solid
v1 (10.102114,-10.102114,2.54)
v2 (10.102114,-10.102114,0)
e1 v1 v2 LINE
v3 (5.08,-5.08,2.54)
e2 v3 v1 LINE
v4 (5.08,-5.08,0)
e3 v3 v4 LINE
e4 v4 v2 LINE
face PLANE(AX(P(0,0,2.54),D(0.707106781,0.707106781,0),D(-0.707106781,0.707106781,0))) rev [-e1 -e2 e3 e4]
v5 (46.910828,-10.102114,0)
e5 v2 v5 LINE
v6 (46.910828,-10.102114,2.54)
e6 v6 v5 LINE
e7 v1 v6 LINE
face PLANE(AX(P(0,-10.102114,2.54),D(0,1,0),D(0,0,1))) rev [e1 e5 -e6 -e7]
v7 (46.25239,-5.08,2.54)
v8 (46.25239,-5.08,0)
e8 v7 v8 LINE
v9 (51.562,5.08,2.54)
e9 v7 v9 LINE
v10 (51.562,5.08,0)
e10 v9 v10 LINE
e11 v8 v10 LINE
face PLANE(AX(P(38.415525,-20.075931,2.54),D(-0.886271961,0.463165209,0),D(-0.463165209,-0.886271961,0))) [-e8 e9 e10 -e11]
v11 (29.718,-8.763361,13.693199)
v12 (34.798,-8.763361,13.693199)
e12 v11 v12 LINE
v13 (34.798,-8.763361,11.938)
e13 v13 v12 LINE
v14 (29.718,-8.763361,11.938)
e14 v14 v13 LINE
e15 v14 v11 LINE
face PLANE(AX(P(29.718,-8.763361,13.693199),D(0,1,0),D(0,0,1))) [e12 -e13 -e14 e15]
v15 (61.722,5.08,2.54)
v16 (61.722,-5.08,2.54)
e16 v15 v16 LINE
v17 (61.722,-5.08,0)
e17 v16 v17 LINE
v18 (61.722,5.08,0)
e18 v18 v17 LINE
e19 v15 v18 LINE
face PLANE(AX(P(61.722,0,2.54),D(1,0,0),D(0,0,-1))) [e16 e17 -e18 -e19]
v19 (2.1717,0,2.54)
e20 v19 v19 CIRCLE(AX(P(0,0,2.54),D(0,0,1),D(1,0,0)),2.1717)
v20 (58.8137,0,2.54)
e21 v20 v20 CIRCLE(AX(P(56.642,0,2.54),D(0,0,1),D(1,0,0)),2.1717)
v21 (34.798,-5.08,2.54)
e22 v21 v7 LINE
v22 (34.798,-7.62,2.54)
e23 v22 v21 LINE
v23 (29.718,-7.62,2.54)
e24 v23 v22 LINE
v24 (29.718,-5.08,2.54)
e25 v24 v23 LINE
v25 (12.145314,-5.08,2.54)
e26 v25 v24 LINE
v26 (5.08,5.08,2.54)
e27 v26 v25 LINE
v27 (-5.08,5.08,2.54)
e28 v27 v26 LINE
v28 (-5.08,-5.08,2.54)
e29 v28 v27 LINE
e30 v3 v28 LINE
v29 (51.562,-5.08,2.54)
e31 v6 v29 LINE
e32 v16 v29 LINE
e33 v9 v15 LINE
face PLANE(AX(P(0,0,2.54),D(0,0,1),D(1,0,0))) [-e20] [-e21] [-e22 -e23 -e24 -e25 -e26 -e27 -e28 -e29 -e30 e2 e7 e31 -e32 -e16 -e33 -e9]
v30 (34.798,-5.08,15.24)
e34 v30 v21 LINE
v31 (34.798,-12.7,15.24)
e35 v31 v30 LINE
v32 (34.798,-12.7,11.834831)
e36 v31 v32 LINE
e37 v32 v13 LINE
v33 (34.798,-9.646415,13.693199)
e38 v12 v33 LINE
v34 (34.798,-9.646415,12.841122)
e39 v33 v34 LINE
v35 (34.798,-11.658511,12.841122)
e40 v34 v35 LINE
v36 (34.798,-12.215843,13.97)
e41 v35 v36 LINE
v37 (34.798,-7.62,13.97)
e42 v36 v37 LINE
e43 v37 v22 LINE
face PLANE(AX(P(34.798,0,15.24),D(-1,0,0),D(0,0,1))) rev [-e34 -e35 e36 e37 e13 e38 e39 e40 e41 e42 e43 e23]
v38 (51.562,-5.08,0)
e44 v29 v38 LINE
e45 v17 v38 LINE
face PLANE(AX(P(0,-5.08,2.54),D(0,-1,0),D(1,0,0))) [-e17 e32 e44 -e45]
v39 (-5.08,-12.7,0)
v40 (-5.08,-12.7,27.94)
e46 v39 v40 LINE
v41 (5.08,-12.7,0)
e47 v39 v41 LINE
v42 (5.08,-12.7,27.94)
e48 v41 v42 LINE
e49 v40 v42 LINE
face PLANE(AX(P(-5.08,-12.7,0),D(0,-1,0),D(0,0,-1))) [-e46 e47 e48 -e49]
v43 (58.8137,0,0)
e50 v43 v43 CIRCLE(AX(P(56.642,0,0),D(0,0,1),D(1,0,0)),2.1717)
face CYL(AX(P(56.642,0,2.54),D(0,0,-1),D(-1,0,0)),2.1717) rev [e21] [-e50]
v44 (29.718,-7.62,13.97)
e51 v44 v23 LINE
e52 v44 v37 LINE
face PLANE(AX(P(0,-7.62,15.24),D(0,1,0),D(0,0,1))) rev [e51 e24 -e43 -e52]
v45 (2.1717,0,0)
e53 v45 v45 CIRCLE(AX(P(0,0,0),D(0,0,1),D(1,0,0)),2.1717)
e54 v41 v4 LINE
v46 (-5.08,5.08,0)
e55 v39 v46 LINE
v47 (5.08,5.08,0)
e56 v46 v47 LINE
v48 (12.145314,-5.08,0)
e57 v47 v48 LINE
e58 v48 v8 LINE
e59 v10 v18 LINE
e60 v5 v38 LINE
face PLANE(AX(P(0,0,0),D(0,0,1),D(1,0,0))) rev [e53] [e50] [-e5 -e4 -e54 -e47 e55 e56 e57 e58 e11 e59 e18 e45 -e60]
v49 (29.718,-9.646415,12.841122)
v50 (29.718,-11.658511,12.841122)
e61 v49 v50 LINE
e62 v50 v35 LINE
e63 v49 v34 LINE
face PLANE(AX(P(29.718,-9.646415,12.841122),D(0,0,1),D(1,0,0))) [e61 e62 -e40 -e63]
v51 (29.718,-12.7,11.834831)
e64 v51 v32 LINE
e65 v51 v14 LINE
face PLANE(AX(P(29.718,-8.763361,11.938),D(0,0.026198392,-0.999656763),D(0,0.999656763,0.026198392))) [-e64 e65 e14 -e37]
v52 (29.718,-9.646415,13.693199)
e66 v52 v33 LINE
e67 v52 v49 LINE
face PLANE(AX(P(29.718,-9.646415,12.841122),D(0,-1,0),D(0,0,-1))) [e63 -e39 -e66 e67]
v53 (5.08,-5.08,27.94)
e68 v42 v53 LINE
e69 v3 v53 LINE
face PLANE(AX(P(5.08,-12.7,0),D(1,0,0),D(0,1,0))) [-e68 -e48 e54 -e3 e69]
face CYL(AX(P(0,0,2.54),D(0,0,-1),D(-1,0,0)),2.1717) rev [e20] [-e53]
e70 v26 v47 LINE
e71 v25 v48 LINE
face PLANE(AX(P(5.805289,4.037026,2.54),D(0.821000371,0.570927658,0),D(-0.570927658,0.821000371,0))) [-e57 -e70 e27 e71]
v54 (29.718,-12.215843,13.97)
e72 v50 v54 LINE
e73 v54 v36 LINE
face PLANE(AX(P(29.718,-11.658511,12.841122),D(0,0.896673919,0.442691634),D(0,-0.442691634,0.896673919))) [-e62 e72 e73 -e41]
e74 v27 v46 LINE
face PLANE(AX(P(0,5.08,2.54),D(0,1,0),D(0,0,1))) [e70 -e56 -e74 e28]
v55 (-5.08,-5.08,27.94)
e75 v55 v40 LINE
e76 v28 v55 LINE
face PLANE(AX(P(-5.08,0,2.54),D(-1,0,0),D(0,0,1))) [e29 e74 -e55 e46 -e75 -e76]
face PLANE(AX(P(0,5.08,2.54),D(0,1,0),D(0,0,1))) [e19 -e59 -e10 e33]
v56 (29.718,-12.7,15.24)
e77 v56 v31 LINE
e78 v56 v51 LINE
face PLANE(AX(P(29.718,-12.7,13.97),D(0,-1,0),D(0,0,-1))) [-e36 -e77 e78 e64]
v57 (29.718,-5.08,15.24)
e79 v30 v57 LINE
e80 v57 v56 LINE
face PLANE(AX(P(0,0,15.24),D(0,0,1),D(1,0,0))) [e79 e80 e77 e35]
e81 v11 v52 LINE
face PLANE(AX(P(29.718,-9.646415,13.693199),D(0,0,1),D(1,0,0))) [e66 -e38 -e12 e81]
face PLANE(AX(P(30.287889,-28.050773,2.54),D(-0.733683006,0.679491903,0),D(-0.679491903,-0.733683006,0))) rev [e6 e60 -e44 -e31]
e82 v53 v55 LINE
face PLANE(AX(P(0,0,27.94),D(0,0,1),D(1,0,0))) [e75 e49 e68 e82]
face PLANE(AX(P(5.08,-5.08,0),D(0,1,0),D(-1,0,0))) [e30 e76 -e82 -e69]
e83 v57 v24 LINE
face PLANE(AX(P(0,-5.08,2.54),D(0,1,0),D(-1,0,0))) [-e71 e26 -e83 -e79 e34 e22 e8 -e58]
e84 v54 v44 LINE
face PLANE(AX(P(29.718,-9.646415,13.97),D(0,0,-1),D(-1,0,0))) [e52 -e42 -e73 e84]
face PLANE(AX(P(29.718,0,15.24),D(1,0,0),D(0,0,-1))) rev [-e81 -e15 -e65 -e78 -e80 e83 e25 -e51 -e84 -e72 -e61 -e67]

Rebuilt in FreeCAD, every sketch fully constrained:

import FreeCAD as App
import Part
import Sketcher
from FreeCAD import Vector
Q = App.Units.Quantity

doc = App.newDocument("Part")
params = doc.addObject("Spreadsheet::Sheet", "Params")
for row, (alias, value) in enumerate([
    ("sketch1_diameter", "0.171 in"),
    ("sketch1_width", "0.4 in"),
    ("pad1_length", "0.1 in"),
    ("sketch2_width", "0.4 in"),
    ("sketch2_height", "0.3 in"),
    ("pad2_length", "1 in"),
    ("pad2_length2", "0.1 in"),
    ("sketch3_width", "0.2 in"),
    ("sketch3_height", "0.1 in"),
    ("pad3_length", "0.5 in"),
    ("sketch4_width", "0.2 in"),
    ("sketch4_height", "0.05 in"),
    ("pad4_length", "0.2 in"),
], start=1):
    params.set(f"A{row}", alias)
    params.set(f"B{row}", "=" + value)
    params.setAlias(f"B{row}", alias)

body = doc.addObject("PartDesign::Body", "Body")

# Sketch on XY plane
sketch1 = body.newObject("Sketcher::SketchObject", "Sketch")
sketch1.AttachmentSupport = (doc.getObject("XY_Plane"), [""])
sketch1.MapMode = "FlatFace"
sketch1.addGeometry(Part.LineSegment(Vector(10.1, -10.1, 0), Vector(46.9, -10.1, 0)), False)
sketch1.addGeometry(Part.LineSegment(Vector(46.9, -10.1, 0), Vector(51.6, -5.1, 0)), False)
sketch1.addGeometry(Part.LineSegment(Vector(51.6, -5.1, 0), Vector(61.7, -5.1, 0)), False)
sketch1.addGeometry(Part.LineSegment(Vector(61.7, -5.1, 0), Vector(61.7, 5.1, 0)), False)
sketch1.addGeometry(Part.LineSegment(Vector(61.7, 5.1, 0), Vector(51.6, 5.1, 0)), False)
sketch1.addGeometry(Part.LineSegment(Vector(51.6, 5.1, 0), Vector(46.3, -5.1, 0)), False)
sketch1.addGeometry(Part.LineSegment(Vector(46.3, -5.1, 0), Vector(12.1, -5.1, 0)), False)
sketch1.addGeometry(Part.LineSegment(Vector(12.1, -5.1, 0), Vector(5.1, 5.1, 0)), False)
sketch1.addGeometry(Part.LineSegment(Vector(5.1, 5.1, 0), Vector(-5.1, 5.1, 0)), False)
sketch1.addGeometry(Part.LineSegment(Vector(-5.1, 5.1, 0), Vector(-5.1, -5.1, 0)), False)
sketch1.addGeometry(Part.LineSegment(Vector(-5.1, -5.1, 0), Vector(5.1, -5.1, 0)), False)
sketch1.addGeometry(Part.LineSegment(Vector(5.1, -5.1, 0), Vector(10.1, -10.1, 0)), False)
sketch1.addGeometry(Part.Circle(Vector(56.6, 0, 0), Vector(0, 0, 1), 2.2), False)
sketch1.addGeometry(Part.Circle(Vector(0, 0, 0), Vector(0, 0, 1), 2.2), False)
sketch1.addConstraint(Sketcher.Constraint("Coincident", 0, 2, 1, 1))
sketch1.addConstraint(Sketcher.Constraint("Coincident", 1, 2, 2, 1))
sketch1.addConstraint(Sketcher.Constraint("Coincident", 2, 2, 3, 1))
sketch1.addConstraint(Sketcher.Constraint("Coincident", 3, 2, 4, 1))
sketch1.addConstraint(Sketcher.Constraint("Coincident", 4, 2, 5, 1))
sketch1.addConstraint(Sketcher.Constraint("Coincident", 5, 2, 6, 1))
sketch1.addConstraint(Sketcher.Constraint("Coincident", 6, 2, 7, 1))
sketch1.addConstraint(Sketcher.Constraint("Coincident", 7, 2, 8, 1))
sketch1.addConstraint(Sketcher.Constraint("Coincident", 8, 2, 9, 1))
sketch1.addConstraint(Sketcher.Constraint("Coincident", 9, 2, 10, 1))
sketch1.addConstraint(Sketcher.Constraint("Coincident", 10, 2, 11, 1))
sketch1.addConstraint(Sketcher.Constraint("Coincident", 11, 2, 0, 1))
sketch1.addConstraint(Sketcher.Constraint("Horizontal", 0))
sketch1.addConstraint(Sketcher.Constraint("Horizontal", 2))
sketch1.addConstraint(Sketcher.Constraint("Vertical", 3))
sketch1.addConstraint(Sketcher.Constraint("Horizontal", 4))
sketch1.addConstraint(Sketcher.Constraint("Horizontal", 6))
sketch1.addConstraint(Sketcher.Constraint("Horizontal", 8))
sketch1.addConstraint(Sketcher.Constraint("Vertical", 9))
sketch1.addConstraint(Sketcher.Constraint("Horizontal", 10))
sketch1.addConstraint(Sketcher.Constraint("Coincident", 13, 3, -1, 1))
sketch1.addConstraint(Sketcher.Constraint("Equal", 12, 13))
sketch1.addConstraint(Sketcher.Constraint("Symmetric", 7, 2, 9, 2, -1, 1))
sketch1.addConstraint(Sketcher.Constraint("Symmetric", 1, 2, 4, 2, -1))
sketch1.addConstraint(Sketcher.Constraint("PointOnObject", 12, 3, -1))
sketch1.addConstraint(Sketcher.Constraint("Horizontal", 2, 2, 5, 2))
sketch1.addConstraint(Sketcher.Constraint("Horizontal", 4, 2, 7, 2))
sketch1.addConstraint(Sketcher.Constraint("Vertical", 7, 2, 10, 2))
sketch1.addConstraint(Sketcher.Constraint("Equal", 4, 8))
sketch1.addConstraint(Sketcher.Constraint("Equal", 10, 3))
sketch1.addConstraint(Sketcher.Constraint("Diameter", 12, Q("0.171 in")))
sketch1.addConstraint(Sketcher.Constraint("DistanceX", 2, 1, 2, 2, Q("0.4 in")))
sketch1.addConstraint(Sketcher.Constraint("Angle", 11, Q("-45 deg")))
sketch1.addConstraint(Sketcher.Constraint("DistanceX", 1, 2, 12, 3, Q("0.2 in")))
sketch1.addConstraint(Sketcher.Constraint("DistanceX", -1, 1, 12, 3, Q("2.23 in")))
sketch1.addConstraint(Sketcher.Constraint("DistanceX", 11, 2, 6, 2, Q("2.043199 mm")))
sketch1.addConstraint(Sketcher.Constraint("Distance", 5, Q("11.46375 mm")))
sketch1.addConstraint(Sketcher.Constraint("DistanceX", 0, 1, 0, 2, Q("36.808713 mm")))
sketch1.addConstraint(Sketcher.Constraint("DistanceX", 6, 2, 6, 1, Q("34.107076 mm")))
sketch1.setExpression("Constraints[30]", "Params.sketch1_diameter")
sketch1.setExpression("Constraints[31]", "Params.sketch1_width")
pad1 = body.newObject("PartDesign::Pad", "Pad")
pad1.Profile = sketch1
pad1.setExpression("Length", "Params.pad1_length")

# Sketch on XY plane
sketch2 = body.newObject("Sketcher::SketchObject", "Sketch001")
sketch2.AttachmentSupport = (doc.getObject("XY_Plane"), [""])
sketch2.MapMode = "FlatFace"
sketch2.AttachmentOffset = App.Placement(Vector(0, 0, 0.1 * 25.4), App.Rotation())
sketch2.addGeometry(Part.LineSegment(Vector(-5, -5, 0), Vector(-5, -13, 0)), False)
sketch2.addGeometry(Part.LineSegment(Vector(-5, -13, 0), Vector(5, -13, 0)), False)
sketch2.addGeometry(Part.LineSegment(Vector(5, -13, 0), Vector(5, -5, 0)), False)
sketch2.addGeometry(Part.LineSegment(Vector(5, -5, 0), Vector(-5, -5, 0)), False)
sketch2.addConstraint(Sketcher.Constraint("Coincident", 0, 2, 1, 1))
sketch2.addConstraint(Sketcher.Constraint("Coincident", 1, 2, 2, 1))
sketch2.addConstraint(Sketcher.Constraint("Coincident", 2, 2, 3, 1))
sketch2.addConstraint(Sketcher.Constraint("Coincident", 3, 2, 0, 1))
sketch2.addConstraint(Sketcher.Constraint("Vertical", 0))
sketch2.addConstraint(Sketcher.Constraint("Horizontal", 1))
sketch2.addConstraint(Sketcher.Constraint("Vertical", 2))
sketch2.addConstraint(Sketcher.Constraint("Horizontal", 3))
sketch2.addConstraint(Sketcher.Constraint("DistanceX", 1, 1, 1, 2, Q("0.4 in")))
sketch2.addConstraint(Sketcher.Constraint("DistanceY", 0, 2, 0, 1, Q("0.3 in")))
sketch2.addConstraint(Sketcher.Constraint("DistanceX", 0, 2, -1, 1, Q("0.2 in")))
sketch2.addConstraint(Sketcher.Constraint("DistanceY", 0, 2, -1, 1, Q("0.5 in")))
sketch2.setExpression("Constraints[8]", "Params.sketch2_width")
sketch2.setExpression("Constraints[9]", "Params.sketch2_height")
pad2 = body.newObject("PartDesign::Pad", "Pad001")
pad2.Profile = sketch2
pad2.Type = "TwoLengths"
pad2.setExpression("Length", "Params.pad2_length")
pad2.setExpression("Length2", "Params.pad2_length2")

# Sketch on XY plane
sketch3 = body.newObject("Sketcher::SketchObject", "Sketch002")
sketch3.AttachmentSupport = (doc.getObject("XY_Plane"), [""])
sketch3.MapMode = "FlatFace"
sketch3.AttachmentOffset = App.Placement(Vector(0, 0, 0.1 * 25.4), App.Rotation())
sketch3.addGeometry(Part.LineSegment(Vector(29.7, -5.1, 0), Vector(29.7, -7.6, 0)), False)
sketch3.addGeometry(Part.LineSegment(Vector(29.7, -7.6, 0), Vector(34.8, -7.6, 0)), False)
sketch3.addGeometry(Part.LineSegment(Vector(34.8, -7.6, 0), Vector(34.8, -5.1, 0)), False)
sketch3.addGeometry(Part.LineSegment(Vector(34.8, -5.1, 0), Vector(29.7, -5.1, 0)), False)
sketch3.addConstraint(Sketcher.Constraint("Coincident", 0, 2, 1, 1))
sketch3.addConstraint(Sketcher.Constraint("Coincident", 1, 2, 2, 1))
sketch3.addConstraint(Sketcher.Constraint("Coincident", 2, 2, 3, 1))
sketch3.addConstraint(Sketcher.Constraint("Coincident", 3, 2, 0, 1))
sketch3.addConstraint(Sketcher.Constraint("Vertical", 0))
sketch3.addConstraint(Sketcher.Constraint("Horizontal", 1))
sketch3.addConstraint(Sketcher.Constraint("Vertical", 2))
sketch3.addConstraint(Sketcher.Constraint("Horizontal", 3))
sketch3.addConstraint(Sketcher.Constraint("DistanceX", 1, 1, 1, 2, Q("0.2 in")))
sketch3.addConstraint(Sketcher.Constraint("DistanceY", 0, 2, 0, 1, Q("0.1 in")))
sketch3.addConstraint(Sketcher.Constraint("DistanceY", 0, 2, -1, 1, Q("0.3 in")))
sketch3.addConstraint(Sketcher.Constraint("DistanceX", -1, 1, 0, 2, Q("1.17 in")))
sketch3.setExpression("Constraints[8]", "Params.sketch3_width")
sketch3.setExpression("Constraints[9]", "Params.sketch3_height")
pad3 = body.newObject("PartDesign::Pad", "Pad002")
pad3.Profile = sketch3
pad3.setExpression("Length", "Params.pad3_length")

# Sketch on YZ plane
sketch4 = body.newObject("Sketcher::SketchObject", "Sketch003")
sketch4.AttachmentSupport = (doc.getObject("YZ_Plane"), [""])
sketch4.MapMode = "FlatFace"
sketch4.AttachmentOffset = App.Placement(Vector(0, 0, 1.37 * 25.4), App.Rotation())
sketch4.addGeometry(Part.LineSegment(Vector(-7.6, 15.2, 0), Vector(-12.7, 15.2, 0)), False)
sketch4.addGeometry(Part.LineSegment(Vector(-12.7, 15.2, 0), Vector(-12.7, 11.8, 0)), False)
sketch4.addGeometry(Part.LineSegment(Vector(-12.7, 11.8, 0), Vector(-8.8, 11.9, 0)), False)
sketch4.addGeometry(Part.LineSegment(Vector(-8.8, 11.9, 0), Vector(-8.8, 13.7, 0)), False)
sketch4.addGeometry(Part.LineSegment(Vector(-8.8, 13.7, 0), Vector(-9.6, 13.7, 0)), False)
sketch4.addGeometry(Part.LineSegment(Vector(-9.6, 13.7, 0), Vector(-9.6, 12.8, 0)), False)
sketch4.addGeometry(Part.LineSegment(Vector(-9.6, 12.8, 0), Vector(-11.7, 12.8, 0)), False)
sketch4.addGeometry(Part.LineSegment(Vector(-11.7, 12.8, 0), Vector(-12.2, 14, 0)), False)
sketch4.addGeometry(Part.LineSegment(Vector(-12.2, 14, 0), Vector(-7.6, 14, 0)), False)
sketch4.addGeometry(Part.LineSegment(Vector(-7.6, 14, 0), Vector(-7.6, 15.2, 0)), False)
sketch4.addConstraint(Sketcher.Constraint("Coincident", 0, 2, 1, 1))
sketch4.addConstraint(Sketcher.Constraint("Coincident", 1, 2, 2, 1))
sketch4.addConstraint(Sketcher.Constraint("Coincident", 2, 2, 3, 1))
sketch4.addConstraint(Sketcher.Constraint("Coincident", 3, 2, 4, 1))
sketch4.addConstraint(Sketcher.Constraint("Coincident", 4, 2, 5, 1))
sketch4.addConstraint(Sketcher.Constraint("Coincident", 5, 2, 6, 1))
sketch4.addConstraint(Sketcher.Constraint("Coincident", 6, 2, 7, 1))
sketch4.addConstraint(Sketcher.Constraint("Coincident", 7, 2, 8, 1))
sketch4.addConstraint(Sketcher.Constraint("Coincident", 8, 2, 9, 1))
sketch4.addConstraint(Sketcher.Constraint("Coincident", 9, 2, 0, 1))
sketch4.addConstraint(Sketcher.Constraint("Horizontal", 0))
sketch4.addConstraint(Sketcher.Constraint("Vertical", 1))
sketch4.addConstraint(Sketcher.Constraint("Vertical", 3))
sketch4.addConstraint(Sketcher.Constraint("Horizontal", 4))
sketch4.addConstraint(Sketcher.Constraint("Vertical", 5))
sketch4.addConstraint(Sketcher.Constraint("Horizontal", 6))
sketch4.addConstraint(Sketcher.Constraint("Horizontal", 8))
sketch4.addConstraint(Sketcher.Constraint("Vertical", 9))
sketch4.addConstraint(Sketcher.Constraint("DistanceX", 0, 2, 0, 1, Q("0.2 in")))
sketch4.addConstraint(Sketcher.Constraint("DistanceY", 9, 1, 9, 2, Q("0.05 in")))
sketch4.addConstraint(Sketcher.Constraint("DistanceX", 0, 2, -1, 1, Q("0.5 in")))
sketch4.addConstraint(Sketcher.Constraint("DistanceY", -1, 1, 0, 2, Q("0.6 in")))
sketch4.addConstraint(Sketcher.Constraint("DistanceY", -1, 1, 2, 2, Q("0.47 in")))
sketch4.addConstraint(Sketcher.Constraint("DistanceY", 3, 1, 3, 2, Q("1.755199 mm")))
sketch4.addConstraint(Sketcher.Constraint("DistanceY", 1, 2, 1, 1, Q("3.405169 mm")))
sketch4.addConstraint(Sketcher.Constraint("Distance", 2, Q("3.937991 mm")))
sketch4.addConstraint(Sketcher.Constraint("Distance", 7, Q("1.258961 mm")))
sketch4.addConstraint(Sketcher.Constraint("DistanceX", 4, 2, 4, 1, Q("0.883054 mm")))
sketch4.addConstraint(Sketcher.Constraint("DistanceX", 6, 2, 6, 1, Q("2.012096 mm")))
sketch4.addConstraint(Sketcher.Constraint("DistanceX", 8, 1, 8, 2, Q("4.595843 mm")))
sketch4.setExpression("Constraints[18]", "Params.sketch4_width")
sketch4.setExpression("Constraints[19]", "Params.sketch4_height")
pad4 = body.newObject("PartDesign::Pad", "Pad003")
pad4.Profile = sketch4
pad4.setExpression("Length", "Params.pad4_length")
pad4.Reversed = True

doc.recompute()
